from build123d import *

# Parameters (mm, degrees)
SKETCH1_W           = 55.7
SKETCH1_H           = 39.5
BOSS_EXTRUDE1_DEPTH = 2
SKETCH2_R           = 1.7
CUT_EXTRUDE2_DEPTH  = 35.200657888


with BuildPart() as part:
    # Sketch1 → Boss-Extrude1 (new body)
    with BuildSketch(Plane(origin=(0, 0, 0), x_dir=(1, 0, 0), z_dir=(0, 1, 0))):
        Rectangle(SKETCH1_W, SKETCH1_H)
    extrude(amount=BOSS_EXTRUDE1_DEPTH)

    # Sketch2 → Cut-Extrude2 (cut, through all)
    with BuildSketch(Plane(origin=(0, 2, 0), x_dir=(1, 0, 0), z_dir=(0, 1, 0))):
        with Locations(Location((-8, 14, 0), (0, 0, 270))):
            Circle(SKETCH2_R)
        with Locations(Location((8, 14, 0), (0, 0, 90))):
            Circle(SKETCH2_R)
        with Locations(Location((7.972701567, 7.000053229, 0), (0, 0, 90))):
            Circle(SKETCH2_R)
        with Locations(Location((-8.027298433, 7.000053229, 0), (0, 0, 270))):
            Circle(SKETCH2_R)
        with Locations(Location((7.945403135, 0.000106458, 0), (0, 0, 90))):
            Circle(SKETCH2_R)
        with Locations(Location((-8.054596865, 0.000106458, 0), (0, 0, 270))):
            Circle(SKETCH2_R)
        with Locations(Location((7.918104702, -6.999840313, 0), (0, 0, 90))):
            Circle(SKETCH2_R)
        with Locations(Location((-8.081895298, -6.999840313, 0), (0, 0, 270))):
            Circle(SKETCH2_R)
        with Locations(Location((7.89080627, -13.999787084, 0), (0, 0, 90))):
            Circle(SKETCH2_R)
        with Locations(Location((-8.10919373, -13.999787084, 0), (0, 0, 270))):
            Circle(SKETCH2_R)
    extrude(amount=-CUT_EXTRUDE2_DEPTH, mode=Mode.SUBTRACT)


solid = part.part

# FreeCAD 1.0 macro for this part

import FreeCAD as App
import Part
import Sketcher


def add_polygon(sketch, points):
    """Adds a closed chain of lines whose ends are joined by coincident constraints."""
    first, n = sketch.GeometryCount, len(points)
    for a, b in zip(points, points[1:] + points[:1]):
        sketch.addGeometry(Part.LineSegment(App.Vector(*a, 0), App.Vector(*b, 0)), False)
    for i in range(n):
        sketch.addConstraint(Sketcher.Constraint("Coincident", first + i, 2, first + (i + 1) % n, 1))

doc = App.newDocument("Part")
body = doc.addObject("PartDesign::Body", "Body")

# Sketch on XZ plane
sketch1 = body.newObject("Sketcher::SketchObject", "Sketch")
sketch1.AttachmentSupport = (doc.getObject("XZ_Plane"), [""])
sketch1.MapMode = "FlatFace"
add_polygon(sketch1, [(-27.85, -19.75), (-27.85, 19.75), (27.85, 19.75), (27.85, -19.75)])  # lines 0-3
sketch1.addConstraint(Sketcher.Constraint("Vertical", 0))
sketch1.addConstraint(Sketcher.Constraint("Horizontal", 1))
sketch1.addConstraint(Sketcher.Constraint("Vertical", 2))
sketch1.addConstraint(Sketcher.Constraint("Horizontal", 3))
sketch1.addConstraint(Sketcher.Constraint("Symmetric", 0, 2, 2, 2, -1, 1))
sketch1.addConstraint(Sketcher.Constraint("DistanceX", 1, 1, 1, 2, 55.7))
sketch1.addConstraint(Sketcher.Constraint("DistanceY", 0, 1, 0, 2, 39.5))
pad1 = body.newObject("PartDesign::Pad", "Pad")
pad1.Profile = sketch1
pad1.Length = 2
pad1.Reversed = True

# Sketch on XZ plane
sketch2 = body.newObject("Sketcher::SketchObject", "Sketch001")
sketch2.AttachmentSupport = (doc.getObject("XZ_Plane"), [""])
sketch2.MapMode = "FlatFace"
sketch2.AttachmentOffset = App.Placement(App.Vector(0, 0, -2), App.Rotation())
sketch2.addGeometry(Part.Circle(App.Vector(-8, -14, 0), App.Vector(0, 0, 1), 1.7), False)
sketch2.addGeometry(Part.Circle(App.Vector(8, -14, 0), App.Vector(0, 0, 1), 1.7), False)
sketch2.addGeometry(Part.Circle(App.Vector(7.972702, -7.000053, 0), App.Vector(0, 0, 1), 1.7), False)
sketch2.addGeometry(Part.Circle(App.Vector(-8.027298, -7.000053, 0), App.Vector(0, 0, 1), 1.7), False)
sketch2.addGeometry(Part.Circle(App.Vector(7.945403, -0.000106, 0), App.Vector(0, 0, 1), 1.7), False)
sketch2.addGeometry(Part.Circle(App.Vector(-8.054597, -0.000106, 0), App.Vector(0, 0, 1), 1.7), False)
sketch2.addGeometry(Part.Circle(App.Vector(7.918105, 6.99984, 0), App.Vector(0, 0, 1), 1.7), False)
sketch2.addGeometry(Part.Circle(App.Vector(-8.081895, 6.99984, 0), App.Vector(0, 0, 1), 1.7), False)
sketch2.addGeometry(Part.Circle(App.Vector(7.890806, 13.999787, 0), App.Vector(0, 0, 1), 1.7), False)
sketch2.addGeometry(Part.Circle(App.Vector(-8.109194, 13.999787, 0), App.Vector(0, 0, 1), 1.7), False)
sketch2.addConstraint(Sketcher.Constraint("Equal", 0, 1))
sketch2.addConstraint(Sketcher.Constraint("Equal", 1, 2))
sketch2.addConstraint(Sketcher.Constraint("Equal", 2, 3))
sketch2.addConstraint(Sketcher.Constraint("Equal", 3, 4))
sketch2.addConstraint(Sketcher.Constraint("Equal", 4, 5))
sketch2.addConstraint(Sketcher.Constraint("Equal", 5, 6))
sketch2.addConstraint(Sketcher.Constraint("Equal", 6, 7))
sketch2.addConstraint(Sketcher.Constraint("Equal", 7, 8))
sketch2.addConstraint(Sketcher.Constraint("Equal", 8, 9))
sketch2.addConstraint(Sketcher.Constraint("Symmetric", 0, 3, 1, 3, -2))
sketch2.addConstraint(Sketcher.Constraint("Horizontal", 2, 3, 3, 3))
sketch2.addConstraint(Sketcher.Constraint("Horizontal", 4, 3, 5, 3))
sketch2.addConstraint(Sketcher.Constraint("Horizontal", 6, 3, 7, 3))
sketch2.addConstraint(Sketcher.Constraint("Horizontal", 8, 3, 9, 3))
sketch2.addConstraint(Sketcher.Constraint("Diameter", 0, 3.4))
sketch2.addConstraint(Sketcher.Constraint("DistanceX", 0, 3, -1, 1, 8.0))
sketch2.addConstraint(Sketcher.Constraint("DistanceY", 0, 3, -1, 1, 14.0))
sketch2.addConstraint(Sketcher.Constraint("DistanceX", 3, 3, 2, 3, 16.0))
sketch2.addConstraint(Sketcher.Constraint("DistanceX", 5, 3, 4, 3, 16.0))
sketch2.addConstraint(Sketcher.Constraint("DistanceX", 7, 3, 6, 3, 16.0))
sketch2.addConstraint(Sketcher.Constraint("DistanceX", 9, 3, 8, 3, 16.0))
sketch2.addConstraint(Sketcher.Constraint("DistanceX", -1, 1, 2, 3, 7.972702))
sketch2.addConstraint(Sketcher.Constraint("DistanceX", 4, 3, 2, 3, 0.027298))
sketch2.addConstraint(Sketcher.Constraint("DistanceX", 6, 3, 4, 3, 0.027298))
sketch2.addConstraint(Sketcher.Constraint("DistanceX", 8, 3, 6, 3, 0.027298))
sketch2.addConstraint(Sketcher.Constraint("DistanceY", -1, 1, 6, 3, 6.99984))
sketch2.addConstraint(Sketcher.Constraint("DistanceY", 2, 3, 8, 3, 20.99984))
sketch2.addConstraint(Sketcher.Constraint("DistanceY", 2, 3, -1, 1, 7.000053))
sketch2.addConstraint(Sketcher.Constraint("DistanceY", 4, 3, -1, 1, 0.000106))
pocket1 = body.newObject("PartDesign::Pocket", "Pocket")
pocket1.Profile = sketch2
pocket1.Type = "ThroughAll"
pocket1.Reversed = True

doc.recompute()
